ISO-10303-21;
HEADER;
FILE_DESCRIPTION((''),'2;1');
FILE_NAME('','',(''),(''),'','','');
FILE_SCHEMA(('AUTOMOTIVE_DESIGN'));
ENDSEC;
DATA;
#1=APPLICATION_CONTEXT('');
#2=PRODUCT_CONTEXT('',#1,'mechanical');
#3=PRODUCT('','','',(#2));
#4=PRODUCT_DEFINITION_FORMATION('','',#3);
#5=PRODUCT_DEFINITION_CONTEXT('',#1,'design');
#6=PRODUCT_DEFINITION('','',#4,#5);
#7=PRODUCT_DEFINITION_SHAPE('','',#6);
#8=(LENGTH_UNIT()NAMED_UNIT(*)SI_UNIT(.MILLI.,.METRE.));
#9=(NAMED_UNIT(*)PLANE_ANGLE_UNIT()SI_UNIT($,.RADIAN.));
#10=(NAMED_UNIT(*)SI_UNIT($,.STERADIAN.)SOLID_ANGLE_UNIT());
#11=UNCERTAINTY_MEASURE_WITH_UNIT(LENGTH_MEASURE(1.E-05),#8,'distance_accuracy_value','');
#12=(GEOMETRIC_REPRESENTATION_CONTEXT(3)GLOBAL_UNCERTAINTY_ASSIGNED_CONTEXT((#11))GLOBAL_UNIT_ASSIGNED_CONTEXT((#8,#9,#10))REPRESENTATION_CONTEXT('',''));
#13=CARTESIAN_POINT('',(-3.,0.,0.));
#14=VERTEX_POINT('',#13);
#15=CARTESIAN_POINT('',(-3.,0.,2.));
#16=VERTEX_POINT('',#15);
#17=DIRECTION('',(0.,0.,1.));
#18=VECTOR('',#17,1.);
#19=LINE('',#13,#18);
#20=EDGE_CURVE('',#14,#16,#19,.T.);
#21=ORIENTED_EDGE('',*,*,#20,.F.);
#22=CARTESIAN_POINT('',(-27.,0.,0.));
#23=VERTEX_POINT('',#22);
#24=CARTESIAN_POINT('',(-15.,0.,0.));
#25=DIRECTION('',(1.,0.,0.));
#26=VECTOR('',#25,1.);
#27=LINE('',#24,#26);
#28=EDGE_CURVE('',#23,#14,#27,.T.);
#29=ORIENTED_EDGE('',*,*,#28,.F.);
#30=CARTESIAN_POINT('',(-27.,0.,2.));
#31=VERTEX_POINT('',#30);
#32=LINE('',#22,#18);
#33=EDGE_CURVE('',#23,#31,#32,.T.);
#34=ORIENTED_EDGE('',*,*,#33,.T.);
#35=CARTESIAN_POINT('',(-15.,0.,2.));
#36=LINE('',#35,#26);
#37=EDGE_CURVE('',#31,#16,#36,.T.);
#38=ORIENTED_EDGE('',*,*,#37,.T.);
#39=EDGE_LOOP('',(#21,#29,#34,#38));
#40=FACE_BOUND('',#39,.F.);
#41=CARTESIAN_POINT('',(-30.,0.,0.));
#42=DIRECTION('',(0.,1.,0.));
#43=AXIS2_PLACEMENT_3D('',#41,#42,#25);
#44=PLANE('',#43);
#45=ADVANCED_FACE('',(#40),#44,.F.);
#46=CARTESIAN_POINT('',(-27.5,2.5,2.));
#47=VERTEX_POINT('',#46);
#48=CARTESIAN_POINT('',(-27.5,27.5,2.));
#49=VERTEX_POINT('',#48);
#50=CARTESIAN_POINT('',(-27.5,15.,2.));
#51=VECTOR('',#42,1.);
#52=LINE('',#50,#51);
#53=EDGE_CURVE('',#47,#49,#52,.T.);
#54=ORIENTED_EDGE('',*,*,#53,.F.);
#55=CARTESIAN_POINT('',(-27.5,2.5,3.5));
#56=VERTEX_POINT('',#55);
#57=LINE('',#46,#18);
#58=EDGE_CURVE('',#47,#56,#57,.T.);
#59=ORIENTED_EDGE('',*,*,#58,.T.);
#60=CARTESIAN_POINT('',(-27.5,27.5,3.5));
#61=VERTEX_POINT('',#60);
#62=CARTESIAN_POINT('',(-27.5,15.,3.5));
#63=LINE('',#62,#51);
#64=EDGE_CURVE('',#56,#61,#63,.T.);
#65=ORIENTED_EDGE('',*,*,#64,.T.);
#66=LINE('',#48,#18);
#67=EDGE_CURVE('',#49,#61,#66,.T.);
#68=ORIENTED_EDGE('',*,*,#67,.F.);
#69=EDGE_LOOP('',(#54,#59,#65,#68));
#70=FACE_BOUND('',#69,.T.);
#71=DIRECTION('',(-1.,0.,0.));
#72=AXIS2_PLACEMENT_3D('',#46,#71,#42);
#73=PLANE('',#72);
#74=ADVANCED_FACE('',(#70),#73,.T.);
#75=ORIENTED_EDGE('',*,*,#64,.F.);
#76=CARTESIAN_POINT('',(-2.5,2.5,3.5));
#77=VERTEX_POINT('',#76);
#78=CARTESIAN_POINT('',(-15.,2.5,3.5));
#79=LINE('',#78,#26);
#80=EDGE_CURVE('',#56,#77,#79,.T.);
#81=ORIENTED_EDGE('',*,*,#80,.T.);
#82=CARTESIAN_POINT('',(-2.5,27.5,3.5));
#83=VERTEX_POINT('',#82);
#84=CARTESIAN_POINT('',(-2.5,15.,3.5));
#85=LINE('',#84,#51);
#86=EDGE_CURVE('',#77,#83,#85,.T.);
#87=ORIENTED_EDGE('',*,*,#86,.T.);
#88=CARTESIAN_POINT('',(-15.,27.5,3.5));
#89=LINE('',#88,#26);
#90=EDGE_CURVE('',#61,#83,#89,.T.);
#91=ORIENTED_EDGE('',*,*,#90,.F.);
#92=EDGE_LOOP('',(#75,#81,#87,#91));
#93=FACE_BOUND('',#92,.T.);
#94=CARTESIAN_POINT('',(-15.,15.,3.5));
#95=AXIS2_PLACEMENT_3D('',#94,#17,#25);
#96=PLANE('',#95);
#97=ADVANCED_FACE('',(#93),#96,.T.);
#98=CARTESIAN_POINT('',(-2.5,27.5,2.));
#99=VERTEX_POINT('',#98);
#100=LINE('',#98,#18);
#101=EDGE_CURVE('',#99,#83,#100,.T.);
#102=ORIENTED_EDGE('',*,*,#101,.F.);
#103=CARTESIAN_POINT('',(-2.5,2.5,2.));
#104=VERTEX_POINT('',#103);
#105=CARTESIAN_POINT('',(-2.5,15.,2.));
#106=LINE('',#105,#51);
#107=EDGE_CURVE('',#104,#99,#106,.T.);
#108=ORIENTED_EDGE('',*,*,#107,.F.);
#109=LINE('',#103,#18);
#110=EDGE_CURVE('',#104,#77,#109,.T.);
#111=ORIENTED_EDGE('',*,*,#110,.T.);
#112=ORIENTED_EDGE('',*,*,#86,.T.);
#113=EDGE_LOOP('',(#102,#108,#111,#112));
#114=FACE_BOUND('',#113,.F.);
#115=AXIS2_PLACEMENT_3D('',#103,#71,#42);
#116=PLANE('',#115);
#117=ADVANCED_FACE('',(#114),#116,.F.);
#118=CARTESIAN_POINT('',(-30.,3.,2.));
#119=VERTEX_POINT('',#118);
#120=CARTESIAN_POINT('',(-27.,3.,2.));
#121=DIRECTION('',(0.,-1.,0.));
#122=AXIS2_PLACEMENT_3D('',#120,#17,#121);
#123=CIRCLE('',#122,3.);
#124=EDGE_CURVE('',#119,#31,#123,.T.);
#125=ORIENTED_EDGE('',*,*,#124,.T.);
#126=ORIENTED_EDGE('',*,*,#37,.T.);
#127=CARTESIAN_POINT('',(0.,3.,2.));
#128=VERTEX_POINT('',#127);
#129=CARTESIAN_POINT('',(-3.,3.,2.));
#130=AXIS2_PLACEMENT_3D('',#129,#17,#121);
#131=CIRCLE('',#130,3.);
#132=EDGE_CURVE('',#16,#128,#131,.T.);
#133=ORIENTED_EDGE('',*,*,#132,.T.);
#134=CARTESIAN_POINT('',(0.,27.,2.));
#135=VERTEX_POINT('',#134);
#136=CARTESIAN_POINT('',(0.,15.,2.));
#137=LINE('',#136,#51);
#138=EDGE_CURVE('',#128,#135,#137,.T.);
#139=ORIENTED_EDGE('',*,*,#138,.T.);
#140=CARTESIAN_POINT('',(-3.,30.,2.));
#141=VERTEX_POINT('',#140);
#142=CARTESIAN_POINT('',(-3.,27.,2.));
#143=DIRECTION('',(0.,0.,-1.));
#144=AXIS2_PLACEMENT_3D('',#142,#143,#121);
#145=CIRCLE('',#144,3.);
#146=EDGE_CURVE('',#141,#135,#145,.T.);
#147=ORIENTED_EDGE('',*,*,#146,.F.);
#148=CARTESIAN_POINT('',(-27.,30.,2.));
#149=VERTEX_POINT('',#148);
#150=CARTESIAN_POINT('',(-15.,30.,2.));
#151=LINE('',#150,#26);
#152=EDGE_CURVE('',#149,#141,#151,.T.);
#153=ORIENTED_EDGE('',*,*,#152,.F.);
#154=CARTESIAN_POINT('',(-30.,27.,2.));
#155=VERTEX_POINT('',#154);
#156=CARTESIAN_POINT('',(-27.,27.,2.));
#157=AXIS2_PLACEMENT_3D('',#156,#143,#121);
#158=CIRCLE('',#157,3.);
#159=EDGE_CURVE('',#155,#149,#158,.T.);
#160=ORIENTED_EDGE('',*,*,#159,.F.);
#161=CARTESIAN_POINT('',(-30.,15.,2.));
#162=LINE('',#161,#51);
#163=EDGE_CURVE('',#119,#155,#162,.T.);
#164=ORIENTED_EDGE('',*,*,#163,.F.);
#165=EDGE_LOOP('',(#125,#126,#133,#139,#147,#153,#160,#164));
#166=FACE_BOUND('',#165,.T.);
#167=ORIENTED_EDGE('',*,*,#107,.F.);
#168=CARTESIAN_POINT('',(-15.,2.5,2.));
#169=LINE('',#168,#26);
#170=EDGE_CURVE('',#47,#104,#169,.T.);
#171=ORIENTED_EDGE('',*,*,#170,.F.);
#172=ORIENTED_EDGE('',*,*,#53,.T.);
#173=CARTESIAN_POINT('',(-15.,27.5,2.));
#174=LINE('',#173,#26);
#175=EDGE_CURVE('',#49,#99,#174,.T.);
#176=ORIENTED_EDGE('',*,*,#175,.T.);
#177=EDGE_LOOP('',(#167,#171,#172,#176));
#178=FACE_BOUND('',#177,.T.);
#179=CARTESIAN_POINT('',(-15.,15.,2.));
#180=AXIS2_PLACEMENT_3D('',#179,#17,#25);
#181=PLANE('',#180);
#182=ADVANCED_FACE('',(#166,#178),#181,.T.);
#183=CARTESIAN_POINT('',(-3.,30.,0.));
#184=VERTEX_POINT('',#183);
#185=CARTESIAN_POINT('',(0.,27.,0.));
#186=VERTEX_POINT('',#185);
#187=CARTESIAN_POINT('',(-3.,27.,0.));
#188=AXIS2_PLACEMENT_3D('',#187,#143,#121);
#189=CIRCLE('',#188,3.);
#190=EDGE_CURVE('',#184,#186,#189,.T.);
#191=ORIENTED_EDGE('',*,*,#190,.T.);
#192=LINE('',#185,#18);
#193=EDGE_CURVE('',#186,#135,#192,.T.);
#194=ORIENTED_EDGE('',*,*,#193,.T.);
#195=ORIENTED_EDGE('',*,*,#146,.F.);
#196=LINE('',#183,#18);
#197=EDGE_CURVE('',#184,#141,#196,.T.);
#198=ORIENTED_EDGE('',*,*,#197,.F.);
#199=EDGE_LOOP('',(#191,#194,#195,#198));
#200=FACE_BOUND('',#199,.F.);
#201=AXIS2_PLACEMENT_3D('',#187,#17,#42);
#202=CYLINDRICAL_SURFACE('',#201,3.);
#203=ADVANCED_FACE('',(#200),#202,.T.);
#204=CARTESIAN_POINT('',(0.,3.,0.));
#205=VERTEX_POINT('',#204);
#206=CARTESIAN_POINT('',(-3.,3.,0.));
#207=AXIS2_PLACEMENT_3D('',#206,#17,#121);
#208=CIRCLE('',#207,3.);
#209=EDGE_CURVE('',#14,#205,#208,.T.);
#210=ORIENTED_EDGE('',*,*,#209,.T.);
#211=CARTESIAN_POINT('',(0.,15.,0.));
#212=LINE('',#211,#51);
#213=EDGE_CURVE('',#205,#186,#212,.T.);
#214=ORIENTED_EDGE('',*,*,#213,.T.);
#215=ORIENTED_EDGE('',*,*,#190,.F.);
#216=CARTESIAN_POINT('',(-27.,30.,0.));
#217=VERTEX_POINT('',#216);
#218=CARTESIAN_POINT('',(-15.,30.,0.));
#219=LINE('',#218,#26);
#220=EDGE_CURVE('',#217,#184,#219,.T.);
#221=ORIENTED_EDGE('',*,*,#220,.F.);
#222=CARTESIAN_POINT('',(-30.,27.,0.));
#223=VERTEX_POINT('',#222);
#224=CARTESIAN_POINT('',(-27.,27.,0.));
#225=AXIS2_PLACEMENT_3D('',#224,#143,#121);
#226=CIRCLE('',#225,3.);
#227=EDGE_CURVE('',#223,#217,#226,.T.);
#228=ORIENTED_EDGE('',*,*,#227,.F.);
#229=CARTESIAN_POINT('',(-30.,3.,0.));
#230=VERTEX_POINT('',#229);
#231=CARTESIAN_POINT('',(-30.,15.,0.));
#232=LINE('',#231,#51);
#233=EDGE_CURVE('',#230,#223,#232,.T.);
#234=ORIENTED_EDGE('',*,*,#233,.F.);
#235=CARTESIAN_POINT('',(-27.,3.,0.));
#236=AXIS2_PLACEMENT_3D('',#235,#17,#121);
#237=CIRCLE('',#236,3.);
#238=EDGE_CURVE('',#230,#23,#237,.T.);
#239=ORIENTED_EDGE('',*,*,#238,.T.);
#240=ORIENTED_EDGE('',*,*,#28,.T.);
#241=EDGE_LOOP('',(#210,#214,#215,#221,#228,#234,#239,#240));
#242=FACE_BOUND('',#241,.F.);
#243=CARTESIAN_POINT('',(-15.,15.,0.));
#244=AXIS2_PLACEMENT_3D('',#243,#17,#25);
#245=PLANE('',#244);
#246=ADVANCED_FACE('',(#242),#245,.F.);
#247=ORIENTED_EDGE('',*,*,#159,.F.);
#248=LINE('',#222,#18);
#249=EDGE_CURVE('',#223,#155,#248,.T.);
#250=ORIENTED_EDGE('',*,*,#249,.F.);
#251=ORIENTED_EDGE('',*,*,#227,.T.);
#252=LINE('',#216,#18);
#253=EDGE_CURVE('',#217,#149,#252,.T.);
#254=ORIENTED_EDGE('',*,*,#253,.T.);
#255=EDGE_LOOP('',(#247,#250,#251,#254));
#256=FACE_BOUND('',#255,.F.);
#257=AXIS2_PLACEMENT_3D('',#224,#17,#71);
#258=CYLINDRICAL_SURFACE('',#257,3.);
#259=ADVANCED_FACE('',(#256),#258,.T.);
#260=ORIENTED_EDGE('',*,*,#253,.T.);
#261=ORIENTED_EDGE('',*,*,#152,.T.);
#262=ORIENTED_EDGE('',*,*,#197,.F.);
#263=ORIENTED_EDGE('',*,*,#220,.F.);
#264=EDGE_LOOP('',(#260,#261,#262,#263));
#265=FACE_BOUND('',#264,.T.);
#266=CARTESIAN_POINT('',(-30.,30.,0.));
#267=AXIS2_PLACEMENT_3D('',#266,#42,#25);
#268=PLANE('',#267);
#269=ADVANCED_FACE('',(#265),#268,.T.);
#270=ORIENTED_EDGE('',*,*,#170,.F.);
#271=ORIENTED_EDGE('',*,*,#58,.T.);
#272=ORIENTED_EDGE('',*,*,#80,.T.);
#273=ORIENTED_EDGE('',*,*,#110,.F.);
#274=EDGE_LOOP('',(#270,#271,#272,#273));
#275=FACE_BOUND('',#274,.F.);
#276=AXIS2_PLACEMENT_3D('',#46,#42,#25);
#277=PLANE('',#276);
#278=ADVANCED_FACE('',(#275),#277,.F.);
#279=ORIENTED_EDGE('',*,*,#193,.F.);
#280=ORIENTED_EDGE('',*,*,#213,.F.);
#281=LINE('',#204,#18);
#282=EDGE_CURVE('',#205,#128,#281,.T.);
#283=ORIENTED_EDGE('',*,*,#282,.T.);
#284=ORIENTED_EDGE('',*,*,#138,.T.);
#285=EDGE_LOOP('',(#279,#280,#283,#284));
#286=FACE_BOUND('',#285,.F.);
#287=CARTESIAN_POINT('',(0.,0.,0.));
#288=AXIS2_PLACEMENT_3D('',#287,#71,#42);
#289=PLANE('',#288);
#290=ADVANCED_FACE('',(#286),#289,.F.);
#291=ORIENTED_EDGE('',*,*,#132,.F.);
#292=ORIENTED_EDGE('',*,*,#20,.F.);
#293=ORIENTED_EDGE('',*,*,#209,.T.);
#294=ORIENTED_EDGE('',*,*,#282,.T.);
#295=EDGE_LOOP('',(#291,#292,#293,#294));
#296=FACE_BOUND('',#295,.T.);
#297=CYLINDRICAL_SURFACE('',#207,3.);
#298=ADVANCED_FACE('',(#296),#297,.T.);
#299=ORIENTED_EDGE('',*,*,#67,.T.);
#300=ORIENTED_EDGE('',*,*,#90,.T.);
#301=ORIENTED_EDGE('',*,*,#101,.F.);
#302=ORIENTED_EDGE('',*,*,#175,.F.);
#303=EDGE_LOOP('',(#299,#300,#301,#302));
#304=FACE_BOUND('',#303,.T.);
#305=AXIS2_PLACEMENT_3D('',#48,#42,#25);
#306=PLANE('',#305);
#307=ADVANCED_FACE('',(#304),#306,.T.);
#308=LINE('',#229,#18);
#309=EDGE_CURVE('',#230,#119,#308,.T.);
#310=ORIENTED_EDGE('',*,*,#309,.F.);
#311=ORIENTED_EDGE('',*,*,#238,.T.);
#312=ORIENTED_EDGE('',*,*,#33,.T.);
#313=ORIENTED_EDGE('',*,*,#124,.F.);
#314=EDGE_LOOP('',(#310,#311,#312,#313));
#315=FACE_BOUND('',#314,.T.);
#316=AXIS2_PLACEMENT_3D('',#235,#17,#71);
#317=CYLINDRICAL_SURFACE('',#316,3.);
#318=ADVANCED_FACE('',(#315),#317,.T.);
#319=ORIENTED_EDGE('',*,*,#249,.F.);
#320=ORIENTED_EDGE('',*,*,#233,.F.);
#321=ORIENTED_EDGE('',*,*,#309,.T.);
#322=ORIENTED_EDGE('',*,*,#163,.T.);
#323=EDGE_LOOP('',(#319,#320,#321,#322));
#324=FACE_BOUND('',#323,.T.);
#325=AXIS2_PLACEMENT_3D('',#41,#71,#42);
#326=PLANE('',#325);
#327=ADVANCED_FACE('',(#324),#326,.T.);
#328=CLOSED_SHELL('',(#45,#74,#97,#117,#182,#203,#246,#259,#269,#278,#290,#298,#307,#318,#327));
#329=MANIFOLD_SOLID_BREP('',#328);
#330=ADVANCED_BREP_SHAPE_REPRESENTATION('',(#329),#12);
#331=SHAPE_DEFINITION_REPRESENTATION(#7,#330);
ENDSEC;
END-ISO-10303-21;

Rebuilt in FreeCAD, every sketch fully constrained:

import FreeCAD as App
import Part
import Sketcher
from FreeCAD import Vector
Q = App.Units.Quantity


def edges_at(feature, points):
    """Names of the edges that pass closest to the given points."""
    edges = feature.Shape.Edges
    near = lambda p: min(range(len(edges)), key=lambda i: edges[i].distToShape(Part.Vertex(*p))[0])
    return sorted({f"Edge{near(p) + 1}" for p in points})


def add_polygon(sketch, points):
    """Adds a closed chain of lines whose ends are joined by coincident constraints."""
    first, n = sketch.GeometryCount, len(points)
    for a, b in zip(points, points[1:] + points[:1]):
        sketch.addGeometry(Part.LineSegment(App.Vector(*a, 0), App.Vector(*b, 0)), False)
    for i in range(n):
        sketch.addConstraint(Sketcher.Constraint("Coincident", first + i, 2, first + (i + 1) % n, 1))

doc = App.newDocument("Part")
body = doc.addObject("PartDesign::Body", "Body")

# Sketch on XY plane
sketch1 = body.newObject("Sketcher::SketchObject", "Sketch")
sketch1.AttachmentSupport = (doc.getObject("XY_Plane"), [""])
sketch1.MapMode = "FlatFace"
add_polygon(sketch1, [(-30, 30), (-30, 0), (0, 0), (0, 30)])  # lines 0-3
sketch1.addConstraint([
    Sketcher.Constraint("Vertical", 0),
    Sketcher.Constraint("Horizontal", 1),
    Sketcher.Constraint("Vertical", 2),
    Sketcher.Constraint("Horizontal", 3),
    Sketcher.Constraint("Coincident", 1, 2, -1, 1),
    Sketcher.Constraint("Equal", 3, 0),
    Sketcher.Constraint("DistanceX", 1, 1, 1, 2, Q("30 mm")),
])
pad1 = body.newObject("PartDesign::Pad", "Pad")
pad1.Profile = sketch1
pad1.Length = 2

# Sketch on XY plane
sketch2 = body.newObject("Sketcher::SketchObject", "Sketch001")
sketch2.AttachmentSupport = (doc.getObject("XY_Plane"), [""])
sketch2.MapMode = "FlatFace"
sketch2.AttachmentOffset = App.Placement(Vector(0, 0, 2), App.Rotation())
add_polygon(sketch2, [(-27.5, 27.5), (-27.5, 2.5), (-2.5, 2.5), (-2.5, 27.5)])  # lines 0-3
sketch2.addConstraint([
    Sketcher.Constraint("Vertical", 0),
    Sketcher.Constraint("Horizontal", 1),
    Sketcher.Constraint("Vertical", 2),
    Sketcher.Constraint("Horizontal", 3),
    Sketcher.Constraint("Equal", 3, 0),
    Sketcher.Constraint("DistanceX", 1, 1, 1, 2, Q("25 mm")),
    Sketcher.Constraint("DistanceX", 0, 2, -1, 1, Q("27.5 mm")),
    Sketcher.Constraint("DistanceY", -1, 1, 0, 2, Q("2.5 mm")),
])
pad2 = body.newObject("PartDesign::Pad", "Pad001")
pad2.Profile = sketch2
pad2.Length = 1.5
doc.recompute()

fillet = body.newObject("PartDesign::Fillet", "Fillet")
fillet.Base = (pad2, edges_at(pad2, [
    (-30, 0, 1),
    (0, 0, 1),
    (0, 30, 1),
    (-30, 30, 1),
]))
fillet.Radius = 3

doc.recompute()
